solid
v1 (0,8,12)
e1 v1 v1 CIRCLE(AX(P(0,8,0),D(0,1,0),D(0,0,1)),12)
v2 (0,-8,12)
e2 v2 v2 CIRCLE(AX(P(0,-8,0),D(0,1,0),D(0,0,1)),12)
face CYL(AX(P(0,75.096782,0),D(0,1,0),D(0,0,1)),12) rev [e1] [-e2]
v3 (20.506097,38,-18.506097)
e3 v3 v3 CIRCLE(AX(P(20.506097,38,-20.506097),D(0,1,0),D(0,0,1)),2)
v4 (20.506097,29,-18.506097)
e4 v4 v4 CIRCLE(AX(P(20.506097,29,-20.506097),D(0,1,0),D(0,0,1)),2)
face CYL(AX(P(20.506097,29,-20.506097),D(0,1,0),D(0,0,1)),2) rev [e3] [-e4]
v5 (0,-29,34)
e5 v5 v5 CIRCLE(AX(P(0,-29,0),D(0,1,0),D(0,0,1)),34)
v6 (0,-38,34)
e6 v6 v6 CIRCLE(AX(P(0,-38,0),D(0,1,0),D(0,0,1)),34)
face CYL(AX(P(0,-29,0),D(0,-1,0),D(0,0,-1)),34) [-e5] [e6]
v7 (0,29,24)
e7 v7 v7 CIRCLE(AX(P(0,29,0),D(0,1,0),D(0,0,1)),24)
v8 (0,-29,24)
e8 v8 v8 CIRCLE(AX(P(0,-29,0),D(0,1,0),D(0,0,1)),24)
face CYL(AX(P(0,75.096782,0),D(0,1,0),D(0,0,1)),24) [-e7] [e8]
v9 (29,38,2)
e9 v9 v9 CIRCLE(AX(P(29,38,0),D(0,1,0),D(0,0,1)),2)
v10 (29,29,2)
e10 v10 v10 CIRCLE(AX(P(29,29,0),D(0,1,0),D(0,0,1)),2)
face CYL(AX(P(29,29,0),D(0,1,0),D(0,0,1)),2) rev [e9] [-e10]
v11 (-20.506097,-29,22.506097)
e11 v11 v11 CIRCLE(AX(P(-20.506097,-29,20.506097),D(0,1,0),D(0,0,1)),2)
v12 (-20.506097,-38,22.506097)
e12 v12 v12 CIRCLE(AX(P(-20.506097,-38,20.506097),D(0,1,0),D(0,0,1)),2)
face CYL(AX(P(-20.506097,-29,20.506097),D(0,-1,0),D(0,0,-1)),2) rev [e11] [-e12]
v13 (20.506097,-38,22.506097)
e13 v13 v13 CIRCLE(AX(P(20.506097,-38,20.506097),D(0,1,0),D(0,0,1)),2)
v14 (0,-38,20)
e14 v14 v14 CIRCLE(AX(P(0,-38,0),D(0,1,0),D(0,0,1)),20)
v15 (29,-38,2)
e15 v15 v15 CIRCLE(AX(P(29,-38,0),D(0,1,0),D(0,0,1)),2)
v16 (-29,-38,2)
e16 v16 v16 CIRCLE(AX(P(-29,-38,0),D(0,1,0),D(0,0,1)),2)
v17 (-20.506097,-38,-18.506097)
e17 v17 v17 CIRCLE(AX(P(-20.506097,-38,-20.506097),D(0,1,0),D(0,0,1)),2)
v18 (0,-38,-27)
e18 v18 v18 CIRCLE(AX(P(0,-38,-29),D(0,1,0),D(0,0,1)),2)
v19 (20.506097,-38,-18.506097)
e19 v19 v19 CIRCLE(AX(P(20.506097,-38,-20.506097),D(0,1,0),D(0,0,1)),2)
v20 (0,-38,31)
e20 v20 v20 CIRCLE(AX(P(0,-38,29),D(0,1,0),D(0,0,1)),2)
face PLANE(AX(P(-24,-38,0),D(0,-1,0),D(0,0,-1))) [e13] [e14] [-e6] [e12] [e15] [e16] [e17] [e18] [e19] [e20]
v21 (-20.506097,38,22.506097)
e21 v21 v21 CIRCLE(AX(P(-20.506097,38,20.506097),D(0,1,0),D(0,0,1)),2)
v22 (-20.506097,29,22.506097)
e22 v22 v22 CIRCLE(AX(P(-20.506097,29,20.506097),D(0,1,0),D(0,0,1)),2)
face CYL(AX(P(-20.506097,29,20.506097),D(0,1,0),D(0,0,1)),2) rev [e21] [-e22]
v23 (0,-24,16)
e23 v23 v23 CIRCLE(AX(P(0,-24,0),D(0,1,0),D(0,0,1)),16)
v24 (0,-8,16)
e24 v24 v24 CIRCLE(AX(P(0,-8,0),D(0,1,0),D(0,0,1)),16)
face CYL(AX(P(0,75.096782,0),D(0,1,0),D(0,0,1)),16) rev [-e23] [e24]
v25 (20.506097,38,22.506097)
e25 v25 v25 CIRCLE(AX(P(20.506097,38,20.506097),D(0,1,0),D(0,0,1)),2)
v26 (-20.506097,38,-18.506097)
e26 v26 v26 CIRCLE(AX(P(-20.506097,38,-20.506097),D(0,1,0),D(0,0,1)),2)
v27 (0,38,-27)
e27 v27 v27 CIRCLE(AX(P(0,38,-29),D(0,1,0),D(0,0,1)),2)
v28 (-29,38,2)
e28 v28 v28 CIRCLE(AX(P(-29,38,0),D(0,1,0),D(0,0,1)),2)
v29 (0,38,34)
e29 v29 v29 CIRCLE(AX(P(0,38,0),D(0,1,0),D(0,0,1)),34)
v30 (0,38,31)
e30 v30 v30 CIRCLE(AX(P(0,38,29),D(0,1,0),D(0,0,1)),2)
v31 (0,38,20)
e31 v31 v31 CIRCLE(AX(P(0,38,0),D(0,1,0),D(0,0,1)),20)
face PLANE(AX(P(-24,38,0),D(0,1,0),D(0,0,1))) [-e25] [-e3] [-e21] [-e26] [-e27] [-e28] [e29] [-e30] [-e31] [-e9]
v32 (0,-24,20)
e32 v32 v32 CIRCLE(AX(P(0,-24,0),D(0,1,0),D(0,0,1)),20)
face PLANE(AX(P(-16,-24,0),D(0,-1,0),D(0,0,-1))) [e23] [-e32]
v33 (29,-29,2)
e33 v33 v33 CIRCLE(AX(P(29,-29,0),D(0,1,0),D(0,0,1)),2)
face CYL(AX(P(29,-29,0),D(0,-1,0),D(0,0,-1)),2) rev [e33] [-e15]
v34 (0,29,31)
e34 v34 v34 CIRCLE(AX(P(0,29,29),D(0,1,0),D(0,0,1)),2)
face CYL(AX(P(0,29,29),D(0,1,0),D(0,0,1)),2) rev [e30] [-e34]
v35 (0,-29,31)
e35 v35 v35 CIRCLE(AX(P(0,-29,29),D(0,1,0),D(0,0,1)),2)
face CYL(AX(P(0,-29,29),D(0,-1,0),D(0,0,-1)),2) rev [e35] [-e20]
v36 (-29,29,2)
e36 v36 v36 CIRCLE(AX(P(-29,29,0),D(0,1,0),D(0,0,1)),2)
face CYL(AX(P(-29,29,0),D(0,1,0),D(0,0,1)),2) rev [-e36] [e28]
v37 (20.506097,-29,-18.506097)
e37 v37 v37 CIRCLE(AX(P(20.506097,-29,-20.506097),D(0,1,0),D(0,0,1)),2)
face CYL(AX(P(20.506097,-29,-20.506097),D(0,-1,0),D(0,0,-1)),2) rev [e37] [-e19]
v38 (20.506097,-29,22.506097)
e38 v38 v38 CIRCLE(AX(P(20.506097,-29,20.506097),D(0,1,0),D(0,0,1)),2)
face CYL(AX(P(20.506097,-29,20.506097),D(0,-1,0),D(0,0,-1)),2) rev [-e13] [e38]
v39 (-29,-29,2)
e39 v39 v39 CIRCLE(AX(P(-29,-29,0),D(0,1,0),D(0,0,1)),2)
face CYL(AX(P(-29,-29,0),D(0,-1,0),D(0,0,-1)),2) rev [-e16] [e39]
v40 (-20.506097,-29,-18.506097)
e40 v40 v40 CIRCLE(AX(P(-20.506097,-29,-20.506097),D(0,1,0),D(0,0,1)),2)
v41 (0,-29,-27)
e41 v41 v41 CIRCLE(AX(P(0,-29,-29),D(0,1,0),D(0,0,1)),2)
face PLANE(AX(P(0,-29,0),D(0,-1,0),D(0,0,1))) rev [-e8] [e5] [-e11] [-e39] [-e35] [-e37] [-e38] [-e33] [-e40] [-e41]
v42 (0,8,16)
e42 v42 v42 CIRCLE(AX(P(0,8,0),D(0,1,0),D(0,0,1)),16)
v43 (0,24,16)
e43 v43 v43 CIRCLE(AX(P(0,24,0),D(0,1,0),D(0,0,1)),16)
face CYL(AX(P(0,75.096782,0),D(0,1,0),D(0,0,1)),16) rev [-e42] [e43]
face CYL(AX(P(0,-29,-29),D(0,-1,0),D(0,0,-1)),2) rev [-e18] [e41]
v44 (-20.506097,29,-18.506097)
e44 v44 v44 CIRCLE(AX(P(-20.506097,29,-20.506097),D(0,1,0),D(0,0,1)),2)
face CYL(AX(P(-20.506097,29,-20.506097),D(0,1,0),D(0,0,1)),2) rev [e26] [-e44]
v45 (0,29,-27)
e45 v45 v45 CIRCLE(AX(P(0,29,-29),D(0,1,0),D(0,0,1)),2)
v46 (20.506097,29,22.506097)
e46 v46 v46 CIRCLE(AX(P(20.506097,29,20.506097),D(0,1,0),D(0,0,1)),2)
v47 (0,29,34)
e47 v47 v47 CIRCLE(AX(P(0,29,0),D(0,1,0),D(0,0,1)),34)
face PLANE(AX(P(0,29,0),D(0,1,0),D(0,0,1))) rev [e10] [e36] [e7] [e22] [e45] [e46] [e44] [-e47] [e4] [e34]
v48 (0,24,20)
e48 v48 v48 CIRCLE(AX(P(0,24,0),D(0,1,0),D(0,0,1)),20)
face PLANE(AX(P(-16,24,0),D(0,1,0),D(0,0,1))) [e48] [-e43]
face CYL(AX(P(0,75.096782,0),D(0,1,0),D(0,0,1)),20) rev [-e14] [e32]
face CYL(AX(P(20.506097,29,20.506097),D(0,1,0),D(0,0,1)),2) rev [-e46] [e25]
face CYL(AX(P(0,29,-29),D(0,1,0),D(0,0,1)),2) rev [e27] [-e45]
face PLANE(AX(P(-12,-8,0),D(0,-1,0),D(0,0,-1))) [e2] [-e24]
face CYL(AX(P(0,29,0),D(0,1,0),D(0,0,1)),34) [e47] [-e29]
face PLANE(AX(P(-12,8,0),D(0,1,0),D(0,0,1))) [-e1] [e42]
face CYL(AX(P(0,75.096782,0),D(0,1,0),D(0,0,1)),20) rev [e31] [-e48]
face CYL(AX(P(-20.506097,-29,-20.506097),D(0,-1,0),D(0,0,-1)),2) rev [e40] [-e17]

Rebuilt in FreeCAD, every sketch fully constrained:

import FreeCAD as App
import Part
import Sketcher

V = App.Vector

doc = App.newDocument("Part")
body = doc.addObject("PartDesign::Body", "Body")

sketch1 = body.newObject("Sketcher::SketchObject", "Sketch")
sketch1.AttachmentSupport = (doc.getObject("XY_Plane"), [""])
sketch1.MapMode = "FlatFace"
sketch1.addGeometry(Part.LineSegment(V(-12, -8, 0), V(-12, 8, 0)), False)
sketch1.addGeometry(Part.LineSegment(V(-12, 8, 0), V(-16, 8, 0)), False)
sketch1.addGeometry(Part.LineSegment(V(-16, 8, 0), V(-16, 24, 0)), False)
sketch1.addGeometry(Part.LineSegment(V(-16, 24, 0), V(-20, 24, 0)), False)
sketch1.addGeometry(Part.LineSegment(V(-20, 24, 0), V(-20, 38, 0)), False)
sketch1.addGeometry(Part.LineSegment(V(-20, 38, 0), V(-24, 38, 0)), False)
sketch1.addGeometry(Part.LineSegment(V(-24, 38, 0), V(-24, -38, 0)), False)
sketch1.addGeometry(Part.LineSegment(V(-24, -38, 0), V(-20, -38, 0)), False)
sketch1.addGeometry(Part.LineSegment(V(-20, -38, 0), V(-20, -24, 0)), False)
sketch1.addGeometry(Part.LineSegment(V(-20, -24, 0), V(-16, -24, 0)), False)
sketch1.addGeometry(Part.LineSegment(V(-16, -24, 0), V(-16, -8, 0)), False)
sketch1.addGeometry(Part.LineSegment(V(-16, -8, 0), V(-12, -8, 0)), False)
sketch1.addConstraint(Sketcher.Constraint("Coincident", 0, 2, 1, 1))
sketch1.addConstraint(Sketcher.Constraint("Coincident", 1, 2, 2, 1))
sketch1.addConstraint(Sketcher.Constraint("Coincident", 2, 2, 3, 1))
sketch1.addConstraint(Sketcher.Constraint("Coincident", 3, 2, 4, 1))
sketch1.addConstraint(Sketcher.Constraint("Coincident", 4, 2, 5, 1))
sketch1.addConstraint(Sketcher.Constraint("Coincident", 5, 2, 6, 1))
sketch1.addConstraint(Sketcher.Constraint("Coincident", 6, 2, 7, 1))
sketch1.addConstraint(Sketcher.Constraint("Coincident", 7, 2, 8, 1))
sketch1.addConstraint(Sketcher.Constraint("Coincident", 8, 2, 9, 1))
sketch1.addConstraint(Sketcher.Constraint("Coincident", 9, 2, 10, 1))
sketch1.addConstraint(Sketcher.Constraint("Coincident", 10, 2, 11, 1))
sketch1.addConstraint(Sketcher.Constraint("Coincident", 11, 2, 0, 1))
sketch1.addConstraint(Sketcher.Constraint("Vertical", 0))
sketch1.addConstraint(Sketcher.Constraint("Horizontal", 1))
sketch1.addConstraint(Sketcher.Constraint("Vertical", 2))
sketch1.addConstraint(Sketcher.Constraint("Horizontal", 3))
sketch1.addConstraint(Sketcher.Constraint("Vertical", 4))
sketch1.addConstraint(Sketcher.Constraint("Horizontal", 5))
sketch1.addConstraint(Sketcher.Constraint("Vertical", 6))
sketch1.addConstraint(Sketcher.Constraint("Horizontal", 7))
sketch1.addConstraint(Sketcher.Constraint("Vertical", 8))
sketch1.addConstraint(Sketcher.Constraint("Horizontal", 9))
sketch1.addConstraint(Sketcher.Constraint("Vertical", 10))
sketch1.addConstraint(Sketcher.Constraint("Horizontal", 11))
sketch1.addConstraint(Sketcher.Constraint("Symmetric", 4, 2, 7, 2, -1))
sketch1.addConstraint(Sketcher.Constraint("Symmetric", 2, 2, 9, 2, -1))
sketch1.addConstraint(Sketcher.Constraint("Equal", 1, 3))
sketch1.addConstraint(Sketcher.Constraint("Equal", 3, 5))
sketch1.addConstraint(Sketcher.Constraint("Equal", 0, 2))
sketch1.addConstraint(Sketcher.Constraint("Equal", 2, 10))
sketch1.addConstraint(Sketcher.Constraint("DistanceX", 1, 2, 1, 1, 4.0))
sketch1.addConstraint(Sketcher.Constraint("DistanceY", 0, 1, 0, 2, 16.0))
sketch1.addConstraint(Sketcher.Constraint("DistanceY", 4, 1, 4, 2, 14.0))
sketch1.addConstraint(Sketcher.Constraint("DistanceX", 0, 2, -1, 1, 12.0))
revolution = body.newObject("PartDesign::Revolution", "Revolution")
revolution.Profile = sketch1
revolution.ReferenceAxis = (sketch1, ["V_Axis"])
revolution.Angle = 360

sketch2 = body.newObject("Sketcher::SketchObject", "Sketch001")
sketch2.AttachmentSupport = (doc.getObject("XZ_Plane"), [""])
sketch2.MapMode = "FlatFace"
sketch2.AttachmentOffset = App.Placement(V(0, 0, -38), App.Rotation())
sketch2.addGeometry(Part.Circle(V(0, 0, 0), V(0, 0, 1), 34), False)
sketch2.addGeometry(Part.Circle(V(-20.5, 20.5, 0), V(0, 0, 1), 2), False)
sketch2.addGeometry(Part.Circle(V(0, 29, 0), V(0, 0, 1), 2), False)
sketch2.addGeometry(Part.Circle(V(20.5, 20.5, 0), V(0, 0, 1), 2), False)
sketch2.addGeometry(Part.Circle(V(-29, 0, 0), V(0, 0, 1), 2), False)
sketch2.addGeometry(Part.Circle(V(-20.5, -20.5, 0), V(0, 0, 1), 2), False)
sketch2.addGeometry(Part.Circle(V(0, 0, 0), V(0, 0, 1), 24), False)
sketch2.addGeometry(Part.Circle(V(29, 0, 0), V(0, 0, 1), 2), False)
sketch2.addGeometry(Part.Circle(V(0, -29, 0), V(0, 0, 1), 2), False)
sketch2.addGeometry(Part.Circle(V(20.5, -20.5, 0), V(0, 0, 1), 2), False)
sketch2.addConstraint(Sketcher.Constraint("Coincident", 0, 3, -1, 1))
sketch2.addConstraint(Sketcher.Constraint("Coincident", 6, 3, -1, 1))
sketch2.addConstraint(Sketcher.Constraint("Equal", 1, 2))
sketch2.addConstraint(Sketcher.Constraint("Equal", 2, 3))
sketch2.addConstraint(Sketcher.Constraint("Equal", 3, 4))
sketch2.addConstraint(Sketcher.Constraint("Equal", 4, 5))
sketch2.addConstraint(Sketcher.Constraint("Equal", 5, 7))
sketch2.addConstraint(Sketcher.Constraint("Equal", 7, 8))
sketch2.addConstraint(Sketcher.Constraint("Equal", 8, 9))
sketch2.addConstraint(Sketcher.Constraint("Symmetric", 3, 3, 5, 3, -1, 1))
sketch2.addConstraint(Sketcher.Constraint("Symmetric", 4, 3, 7, 3, -1, 1))
sketch2.addConstraint(Sketcher.Constraint("Symmetric", 2, 3, 8, 3, -1, 1))
sketch2.addConstraint(Sketcher.Constraint("Symmetric", 1, 3, 9, 3, -1, 1))
sketch2.addConstraint(Sketcher.Constraint("Symmetric", 1, 3, 3, 3, -2))
sketch2.addConstraint(Sketcher.Constraint("PointOnObject", 2, 3, -2))
sketch2.addConstraint(Sketcher.Constraint("PointOnObject", 4, 3, -1))
sketch2.addConstraint(Sketcher.Constraint("Diameter", 0, 68.0))
sketch2.addConstraint(Sketcher.Constraint("Diameter", 1, 4.0))
sketch2.addConstraint(Sketcher.Constraint("Diameter", 6, 48.0))
sketch2.addConstraint(Sketcher.Constraint("DistanceY", -1, 1, 2, 3, 29.0))
sketch2.addConstraint(Sketcher.Constraint("DistanceX", 4, 3, -1, 1, 29.0))
sketch2.addConstraint(Sketcher.Constraint("DistanceX", 1, 3, -1, 1, 20.506097))
sketch2.addConstraint(Sketcher.Constraint("DistanceY", -1, 1, 1, 3, 20.506097))
pad1 = body.newObject("PartDesign::Pad", "Pad")
pad1.Profile = sketch2
pad1.Length = 9
doc.recompute()

mirrored = body.newObject("PartDesign::Mirrored", "Mirrored")
mirrored.Originals = [pad1]
mirrored.MirrorPlane = (doc.getObject("XZ_Plane"), [""])
body.Tip = mirrored

doc.recompute()
